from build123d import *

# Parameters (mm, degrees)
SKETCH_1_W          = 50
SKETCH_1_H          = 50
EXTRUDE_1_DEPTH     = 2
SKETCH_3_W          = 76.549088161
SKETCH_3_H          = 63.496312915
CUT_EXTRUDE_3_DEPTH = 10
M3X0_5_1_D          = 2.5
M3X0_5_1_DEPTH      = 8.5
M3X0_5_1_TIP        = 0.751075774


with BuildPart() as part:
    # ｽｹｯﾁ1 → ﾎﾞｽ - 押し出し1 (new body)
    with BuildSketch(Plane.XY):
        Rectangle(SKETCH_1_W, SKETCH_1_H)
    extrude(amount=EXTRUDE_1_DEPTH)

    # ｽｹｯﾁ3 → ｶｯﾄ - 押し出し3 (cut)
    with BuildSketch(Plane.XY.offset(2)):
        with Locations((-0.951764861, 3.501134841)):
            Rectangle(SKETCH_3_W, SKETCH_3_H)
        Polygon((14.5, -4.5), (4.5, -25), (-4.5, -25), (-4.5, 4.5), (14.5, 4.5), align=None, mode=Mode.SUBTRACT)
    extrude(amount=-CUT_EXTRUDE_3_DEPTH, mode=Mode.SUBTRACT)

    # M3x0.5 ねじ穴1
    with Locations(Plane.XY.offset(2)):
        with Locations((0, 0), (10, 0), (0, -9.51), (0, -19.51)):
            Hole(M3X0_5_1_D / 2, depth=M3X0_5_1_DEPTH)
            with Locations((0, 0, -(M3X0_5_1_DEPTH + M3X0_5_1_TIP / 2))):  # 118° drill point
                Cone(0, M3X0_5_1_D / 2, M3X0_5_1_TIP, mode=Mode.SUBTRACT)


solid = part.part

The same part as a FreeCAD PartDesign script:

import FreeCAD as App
import Part
import Sketcher

V = App.Vector
Q = App.Units.Quantity

doc = App.newDocument("Part")
body = doc.addObject("PartDesign::Body", "Body")

# Sketch on XY plane
sketch1 = doc.addObject("Sketcher::SketchObject", "Sketch")
body.addObject(sketch1)
sketch1.AttachmentSupport = (doc.XY_Plane, [""])
sketch1.MapMode = "FlatFace"
sketch1.addGeometry(Part.LineSegment(V(-25, 25, 0), V(-25, -25, 0)), False)
sketch1.addGeometry(Part.LineSegment(V(-25, -25, 0), V(25, -25, 0)), False)
sketch1.addGeometry(Part.LineSegment(V(25, -25, 0), V(25, 25, 0)), False)
sketch1.addGeometry(Part.LineSegment(V(25, 25, 0), V(-25, 25, 0)), False)
sketch1.addConstraint(Sketcher.Constraint("Coincident", 0, 2, 1, 1))
sketch1.addConstraint(Sketcher.Constraint("Coincident", 1, 2, 2, 1))
sketch1.addConstraint(Sketcher.Constraint("Coincident", 2, 2, 3, 1))
sketch1.addConstraint(Sketcher.Constraint("Coincident", 3, 2, 0, 1))
sketch1.addConstraint(Sketcher.Constraint("Vertical", 0))
sketch1.addConstraint(Sketcher.Constraint("Horizontal", 1))
sketch1.addConstraint(Sketcher.Constraint("Vertical", 2))
sketch1.addConstraint(Sketcher.Constraint("Horizontal", 3))
sketch1.addConstraint(Sketcher.Constraint("Symmetric", 0, 2, 2, 2, -1, 1))
sketch1.addConstraint(Sketcher.Constraint("Equal", 3, 0))
sketch1.addConstraint(Sketcher.Constraint("DistanceX", 1, 1, 1, 2, Q("50 mm")))
pad1 = doc.addObject("PartDesign::Pad", "Pad")
body.addObject(pad1)
pad1.Profile = sketch1
pad1.Length = 2

# Sketch on XY plane
sketch2 = doc.addObject("Sketcher::SketchObject", "Sketch001")
body.addObject(sketch2)
sketch2.AttachmentSupport = (doc.XY_Plane, [""])
sketch2.MapMode = "FlatFace"
sketch2.AttachmentOffset = App.Placement(V(0, 0, 2), App.Rotation())
sketch2.addGeometry(Part.LineSegment(V(-39.226309, 35.249291, 0), V(-39.226309, -28.247022, 0)), False)
sketch2.addGeometry(Part.LineSegment(V(-39.226309, -28.247022, 0), V(37.322779, -28.247022, 0)), False)
sketch2.addGeometry(Part.LineSegment(V(37.322779, -28.247022, 0), V(37.322779, 35.249291, 0)), False)
sketch2.addGeometry(Part.LineSegment(V(37.322779, 35.249291, 0), V(-39.226309, 35.249291, 0)), False)
sketch2.addGeometry(Part.LineSegment(V(14.5, 4.5, 0), V(14.5, -4.5, 0)), False)
sketch2.addGeometry(Part.LineSegment(V(14.5, -4.5, 0), V(4.5, -25, 0)), False)
sketch2.addGeometry(Part.LineSegment(V(4.5, -25, 0), V(-4.5, -25, 0)), False)
sketch2.addGeometry(Part.LineSegment(V(-4.5, -25, 0), V(-4.5, 4.5, 0)), False)
sketch2.addGeometry(Part.LineSegment(V(-4.5, 4.5, 0), V(14.5, 4.5, 0)), False)
sketch2.addConstraint(Sketcher.Constraint("Coincident", 0, 2, 1, 1))
sketch2.addConstraint(Sketcher.Constraint("Coincident", 1, 2, 2, 1))
sketch2.addConstraint(Sketcher.Constraint("Coincident", 2, 2, 3, 1))
sketch2.addConstraint(Sketcher.Constraint("Coincident", 3, 2, 0, 1))
sketch2.addConstraint(Sketcher.Constraint("Coincident", 4, 2, 5, 1))
sketch2.addConstraint(Sketcher.Constraint("Coincident", 5, 2, 6, 1))
sketch2.addConstraint(Sketcher.Constraint("Coincident", 6, 2, 7, 1))
sketch2.addConstraint(Sketcher.Constraint("Coincident", 7, 2, 8, 1))
sketch2.addConstraint(Sketcher.Constraint("Coincident", 8, 2, 4, 1))
sketch2.addConstraint(Sketcher.Constraint("Vertical", 0))
sketch2.addConstraint(Sketcher.Constraint("Horizontal", 1))
sketch2.addConstraint(Sketcher.Constraint("Vertical", 2))
sketch2.addConstraint(Sketcher.Constraint("Horizontal", 3))
sketch2.addConstraint(Sketcher.Constraint("Vertical", 4))
sketch2.addConstraint(Sketcher.Constraint("Horizontal", 6))
sketch2.addConstraint(Sketcher.Constraint("Vertical", 7))
sketch2.addConstraint(Sketcher.Constraint("Horizontal", 8))
sketch2.addConstraint(Sketcher.Constraint("Equal", 6, 4))
sketch2.addConstraint(Sketcher.Constraint("DistanceX", 6, 2, 6, 1, Q("9 mm")))
sketch2.addConstraint(Sketcher.Constraint("DistanceX", 8, 1, 8, 2, Q("19 mm")))
sketch2.addConstraint(Sketcher.Constraint("DistanceY", 7, 1, 7, 2, Q("29.5 mm")))
sketch2.addConstraint(Sketcher.Constraint("DistanceY", 5, 2, -1, 1, Q("25 mm")))
sketch2.addConstraint(Sketcher.Constraint("DistanceX", -1, 1, 4, 2, Q("14.5 mm")))
sketch2.addConstraint(Sketcher.Constraint("DistanceX", 1, 1, 1, 2, Q("76.549088 mm")))
sketch2.addConstraint(Sketcher.Constraint("DistanceY", 0, 2, 0, 1, Q("63.496313 mm")))
sketch2.addConstraint(Sketcher.Constraint("DistanceX", 0, 2, -1, 1, Q("39.226309 mm")))
sketch2.addConstraint(Sketcher.Constraint("DistanceY", 0, 2, -1, 1, Q("28.247022 mm")))
pocket1 = doc.addObject("PartDesign::Pocket", "Pocket")
body.addObject(pocket1)
pocket1.Profile = sketch2
pocket1.Length = 10

# Sketch on XY plane
sketch3 = doc.addObject("Sketcher::SketchObject", "Sketch002")
body.addObject(sketch3)
sketch3.AttachmentSupport = (doc.XY_Plane, [""])
sketch3.MapMode = "FlatFace"
sketch3.AttachmentOffset = App.Placement(V(0, 0, 2), App.Rotation())
sketch3.addGeometry(Part.Circle(V(0, 0, 0), V(0, 0, 1), 1.25), False)
sketch3.addGeometry(Part.Circle(V(10, 0, 0), V(0, 0, 1), 1.25), False)
sketch3.addGeometry(Part.Circle(V(0, -9.51, 0), V(0, 0, 1), 1.25), False)
sketch3.addGeometry(Part.Circle(V(0, -19.51, 0), V(0, 0, 1), 1.25), False)
sketch3.addConstraint(Sketcher.Constraint("Coincident", 0, 3, -1, 1))
sketch3.addConstraint(Sketcher.Constraint("Equal", 0, 1))
sketch3.addConstraint(Sketcher.Constraint("Equal", 1, 2))
sketch3.addConstraint(Sketcher.Constraint("Equal", 2, 3))
sketch3.addConstraint(Sketcher.Constraint("PointOnObject", 1, 3, -1))
sketch3.addConstraint(Sketcher.Constraint("PointOnObject", 2, 3, -2))
sketch3.addConstraint(Sketcher.Constraint("PointOnObject", 3, 3, -2))
sketch3.addConstraint(Sketcher.Constraint("Diameter", 0, Q("2.5 mm")))
sketch3.addConstraint(Sketcher.Constraint("DistanceX", -1, 1, 1, 3, Q("10 mm")))
sketch3.addConstraint(Sketcher.Constraint("DistanceY", 3, 3, 2, 3, Q("10 mm")))
sketch3.addConstraint(Sketcher.Constraint("DistanceY", 2, 3, -1, 1, Q("9.51 mm")))
doc.recompute()
hole = doc.addObject("PartDesign::Hole", "Hole")
body.addObject(hole)
hole.Profile = sketch3
hole.ThreadType = "None"
hole.Diameter = 2.5
hole.DepthType = "Dimension"
hole.Depth = 8.5
hole.DrillPoint = "Angled"
hole.DrillPointAngle = 118

doc.recompute()
